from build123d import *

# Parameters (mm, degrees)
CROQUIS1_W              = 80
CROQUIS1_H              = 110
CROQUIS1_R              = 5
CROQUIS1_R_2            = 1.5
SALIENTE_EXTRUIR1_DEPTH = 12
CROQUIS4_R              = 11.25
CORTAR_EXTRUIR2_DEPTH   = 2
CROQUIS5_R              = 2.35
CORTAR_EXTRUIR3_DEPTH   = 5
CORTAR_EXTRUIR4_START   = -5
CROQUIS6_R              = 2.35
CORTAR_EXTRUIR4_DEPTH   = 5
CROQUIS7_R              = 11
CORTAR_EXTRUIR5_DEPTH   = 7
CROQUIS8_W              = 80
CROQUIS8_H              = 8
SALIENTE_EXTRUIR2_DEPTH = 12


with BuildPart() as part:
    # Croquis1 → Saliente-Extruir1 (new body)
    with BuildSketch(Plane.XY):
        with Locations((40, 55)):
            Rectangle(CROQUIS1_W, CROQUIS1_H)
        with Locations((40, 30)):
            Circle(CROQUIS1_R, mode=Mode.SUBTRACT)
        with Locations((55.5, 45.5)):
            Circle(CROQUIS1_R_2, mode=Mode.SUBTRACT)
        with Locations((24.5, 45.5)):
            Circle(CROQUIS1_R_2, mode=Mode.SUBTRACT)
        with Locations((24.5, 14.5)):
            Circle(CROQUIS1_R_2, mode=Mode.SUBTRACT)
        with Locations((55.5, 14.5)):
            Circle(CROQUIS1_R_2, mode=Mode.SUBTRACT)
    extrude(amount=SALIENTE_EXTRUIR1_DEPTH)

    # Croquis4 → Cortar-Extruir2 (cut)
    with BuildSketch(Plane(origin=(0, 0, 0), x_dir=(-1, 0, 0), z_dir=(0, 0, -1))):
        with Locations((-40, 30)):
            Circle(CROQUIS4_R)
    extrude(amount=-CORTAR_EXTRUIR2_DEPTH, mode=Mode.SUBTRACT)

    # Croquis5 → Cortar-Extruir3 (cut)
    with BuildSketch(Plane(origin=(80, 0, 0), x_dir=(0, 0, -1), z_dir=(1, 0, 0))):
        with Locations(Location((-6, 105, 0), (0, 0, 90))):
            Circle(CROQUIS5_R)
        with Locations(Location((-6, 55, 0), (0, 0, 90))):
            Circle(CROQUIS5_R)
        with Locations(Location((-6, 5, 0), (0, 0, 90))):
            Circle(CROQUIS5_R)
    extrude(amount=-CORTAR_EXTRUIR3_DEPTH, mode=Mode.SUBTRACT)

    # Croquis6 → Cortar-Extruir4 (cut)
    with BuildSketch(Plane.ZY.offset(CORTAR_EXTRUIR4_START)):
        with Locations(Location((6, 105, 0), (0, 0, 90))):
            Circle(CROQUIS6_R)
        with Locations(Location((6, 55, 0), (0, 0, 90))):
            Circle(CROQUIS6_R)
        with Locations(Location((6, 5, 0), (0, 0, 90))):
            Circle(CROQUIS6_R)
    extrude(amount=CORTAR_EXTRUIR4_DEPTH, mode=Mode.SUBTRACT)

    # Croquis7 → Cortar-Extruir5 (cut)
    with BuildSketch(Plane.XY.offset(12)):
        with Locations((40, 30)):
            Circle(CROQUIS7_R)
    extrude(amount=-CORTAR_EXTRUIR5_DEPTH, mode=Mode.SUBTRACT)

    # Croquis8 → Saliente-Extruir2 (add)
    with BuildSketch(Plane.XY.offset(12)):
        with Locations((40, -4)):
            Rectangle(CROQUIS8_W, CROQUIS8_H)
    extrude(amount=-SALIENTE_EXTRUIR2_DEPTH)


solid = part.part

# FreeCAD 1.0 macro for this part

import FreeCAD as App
import Part
import Sketcher
from FreeCAD import Vector
Q = App.Units.Quantity

doc = App.newDocument("Part")
body = doc.addObject("PartDesign::Body", "Body")

# Sketch on XY plane
sketch1 = body.newObject("Sketcher::SketchObject", "Sketch")
sketch1.AttachmentSupport = (doc.getObject("XY_Plane"), [""])
sketch1.MapMode = "FlatFace"
sketch1.addGeometry(Part.LineSegment(Vector(0, 110, 0), Vector(0, 0, 0)), False)
sketch1.addGeometry(Part.LineSegment(Vector(0, 0, 0), Vector(80, 0, 0)), False)
sketch1.addGeometry(Part.LineSegment(Vector(80, 0, 0), Vector(80, 110, 0)), False)
sketch1.addGeometry(Part.LineSegment(Vector(80, 110, 0), Vector(0, 110, 0)), False)
sketch1.addGeometry(Part.Circle(Vector(24.5, 14.5, 0), Vector(0, 0, 1), 1.5), False)
sketch1.addGeometry(Part.Circle(Vector(55.5, 14.5, 0), Vector(0, 0, 1), 1.5), False)
sketch1.addGeometry(Part.Circle(Vector(24.5, 45.5, 0), Vector(0, 0, 1), 1.5), False)
sketch1.addGeometry(Part.Circle(Vector(40, 30, 0), Vector(0, 0, 1), 5), False)
sketch1.addGeometry(Part.Circle(Vector(55.5, 45.5, 0), Vector(0, 0, 1), 1.5), False)
sketch1.addConstraint(Sketcher.Constraint("Coincident", 0, 2, 1, 1))
sketch1.addConstraint(Sketcher.Constraint("Coincident", 1, 2, 2, 1))
sketch1.addConstraint(Sketcher.Constraint("Coincident", 2, 2, 3, 1))
sketch1.addConstraint(Sketcher.Constraint("Coincident", 3, 2, 0, 1))
sketch1.addConstraint(Sketcher.Constraint("Vertical", 0))
sketch1.addConstraint(Sketcher.Constraint("Horizontal", 1))
sketch1.addConstraint(Sketcher.Constraint("Vertical", 2))
sketch1.addConstraint(Sketcher.Constraint("Horizontal", 3))
sketch1.addConstraint(Sketcher.Constraint("Coincident", 0, 2, -1, 1))
sketch1.addConstraint(Sketcher.Constraint("Equal", 4, 5))
sketch1.addConstraint(Sketcher.Constraint("Equal", 5, 6))
sketch1.addConstraint(Sketcher.Constraint("Equal", 6, 8))
sketch1.addConstraint(Sketcher.Constraint("Horizontal", 4, 3, 5, 3))
sketch1.addConstraint(Sketcher.Constraint("Horizontal", 6, 3, 8, 3))
sketch1.addConstraint(Sketcher.Constraint("Vertical", 4, 3, 6, 3))
sketch1.addConstraint(Sketcher.Constraint("Vertical", 5, 3, 8, 3))
sketch1.addConstraint(Sketcher.Constraint("Diameter", 4, Q("3 mm")))
sketch1.addConstraint(Sketcher.Constraint("Diameter", 7, Q("10 mm")))
sketch1.addConstraint(Sketcher.Constraint("DistanceX", 1, 1, 1, 2, Q("80 mm")))
sketch1.addConstraint(Sketcher.Constraint("DistanceY", 0, 2, 0, 1, Q("110 mm")))
sketch1.addConstraint(Sketcher.Constraint("DistanceX", -1, 1, 7, 3, Q("40 mm")))
sketch1.addConstraint(Sketcher.Constraint("DistanceY", -1, 1, 7, 3, Q("30 mm")))
sketch1.addConstraint(Sketcher.Constraint("DistanceX", 4, 3, 5, 3, Q("31 mm")))
sketch1.addConstraint(Sketcher.Constraint("DistanceY", 4, 3, 6, 3, Q("31 mm")))
sketch1.addConstraint(Sketcher.Constraint("DistanceX", -1, 1, 4, 3, Q("24.5 mm")))
sketch1.addConstraint(Sketcher.Constraint("DistanceY", -1, 1, 4, 3, Q("14.5 mm")))
pad1 = body.newObject("PartDesign::Pad", "Pad")
pad1.Profile = sketch1
pad1.Length = 12

# Sketch on XY plane
sketch2 = body.newObject("Sketcher::SketchObject", "Sketch001")
sketch2.AttachmentSupport = (doc.getObject("XY_Plane"), [""])
sketch2.MapMode = "FlatFace"
sketch2.addGeometry(Part.Circle(Vector(40, 30, 0), Vector(0, 0, 1), 11.25), False)
sketch2.addConstraint(Sketcher.Constraint("Diameter", 0, Q("22.5 mm")))
sketch2.addConstraint(Sketcher.Constraint("DistanceX", -1, 1, 0, 3, Q("40 mm")))
sketch2.addConstraint(Sketcher.Constraint("DistanceY", -1, 1, 0, 3, Q("30 mm")))
pocket1 = body.newObject("PartDesign::Pocket", "Pocket")
pocket1.Profile = sketch2
pocket1.Length = 2
pocket1.Reversed = True

# Sketch on YZ plane
sketch3 = body.newObject("Sketcher::SketchObject", "Sketch002")
sketch3.AttachmentSupport = (doc.getObject("YZ_Plane"), [""])
sketch3.MapMode = "FlatFace"
sketch3.AttachmentOffset = App.Placement(Vector(0, 0, 80), App.Rotation())
sketch3.addGeometry(Part.Circle(Vector(105, 6, 0), Vector(0, 0, 1), 2.35), False)
sketch3.addGeometry(Part.Circle(Vector(55, 6, 0), Vector(0, 0, 1), 2.35), False)
sketch3.addGeometry(Part.Circle(Vector(5, 6, 0), Vector(0, 0, 1), 2.35), False)
sketch3.addConstraint(Sketcher.Constraint("Equal", 0, 1))
sketch3.addConstraint(Sketcher.Constraint("Equal", 1, 2))
sketch3.addConstraint(Sketcher.Constraint("Horizontal", 0, 3, 1, 3))
sketch3.addConstraint(Sketcher.Constraint("Horizontal", 1, 3, 2, 3))
sketch3.addConstraint(Sketcher.Constraint("Diameter", 0, Q("4.7 mm")))
sketch3.addConstraint(Sketcher.Constraint("DistanceX", -1, 1, 0, 3, Q("105 mm")))
sketch3.addConstraint(Sketcher.Constraint("DistanceY", -1, 1, 0, 3, Q("6 mm")))
sketch3.addConstraint(Sketcher.Constraint("DistanceX", -1, 1, 1, 3, Q("55 mm")))
sketch3.addConstraint(Sketcher.Constraint("DistanceX", -1, 1, 2, 3, Q("5 mm")))
pocket2 = body.newObject("PartDesign::Pocket", "Pocket001")
pocket2.Profile = sketch3
pocket2.Length = 5

# Sketch on YZ plane
sketch4 = body.newObject("Sketcher::SketchObject", "Sketch003")
sketch4.AttachmentSupport = (doc.getObject("YZ_Plane"), [""])
sketch4.MapMode = "FlatFace"
sketch4.AttachmentOffset = App.Placement(Vector(0, 0, 5), App.Rotation())
sketch4.addGeometry(Part.Circle(Vector(105, 6, 0), Vector(0, 0, 1), 2.35), False)
sketch4.addGeometry(Part.Circle(Vector(55, 6, 0), Vector(0, 0, 1), 2.35), False)
sketch4.addGeometry(Part.Circle(Vector(5, 6, 0), Vector(0, 0, 1), 2.35), False)
sketch4.addConstraint(Sketcher.Constraint("Equal", 0, 1))
sketch4.addConstraint(Sketcher.Constraint("Equal", 1, 2))
sketch4.addConstraint(Sketcher.Constraint("Horizontal", 0, 3, 1, 3))
sketch4.addConstraint(Sketcher.Constraint("Horizontal", 1, 3, 2, 3))
sketch4.addConstraint(Sketcher.Constraint("Diameter", 0, Q("4.7 mm")))
sketch4.addConstraint(Sketcher.Constraint("DistanceX", -1, 1, 0, 3, Q("105 mm")))
sketch4.addConstraint(Sketcher.Constraint("DistanceY", -1, 1, 0, 3, Q("6 mm")))
sketch4.addConstraint(Sketcher.Constraint("DistanceX", -1, 1, 1, 3, Q("55 mm")))
sketch4.addConstraint(Sketcher.Constraint("DistanceX", -1, 1, 2, 3, Q("5 mm")))
pocket3 = body.newObject("PartDesign::Pocket", "Pocket002")
pocket3.Profile = sketch4
pocket3.Length = 5

# Sketch on XY plane
sketch5 = body.newObject("Sketcher::SketchObject", "Sketch004")
sketch5.AttachmentSupport = (doc.getObject("XY_Plane"), [""])
sketch5.MapMode = "FlatFace"
sketch5.AttachmentOffset = App.Placement(Vector(0, 0, 12), App.Rotation())
sketch5.addGeometry(Part.Circle(Vector(40, 30, 0), Vector(0, 0, 1), 11), False)
sketch5.addConstraint(Sketcher.Constraint("Diameter", 0, Q("22 mm")))
sketch5.addConstraint(Sketcher.Constraint("DistanceX", -1, 1, 0, 3, Q("40 mm")))
sketch5.addConstraint(Sketcher.Constraint("DistanceY", -1, 1, 0, 3, Q("30 mm")))
pocket4 = body.newObject("PartDesign::Pocket", "Pocket003")
pocket4.Profile = sketch5
pocket4.Length = 7

# Sketch on XY plane
sketch6 = body.newObject("Sketcher::SketchObject", "Sketch005")
sketch6.AttachmentSupport = (doc.getObject("XY_Plane"), [""])
sketch6.MapMode = "FlatFace"
sketch6.AttachmentOffset = App.Placement(Vector(0, 0, 12), App.Rotation())
sketch6.addGeometry(Part.LineSegment(Vector(0, 0, 0), Vector(0, -8, 0)), False)
sketch6.addGeometry(Part.LineSegment(Vector(0, -8, 0), Vector(80, -8, 0)), False)
sketch6.addGeometry(Part.LineSegment(Vector(80, -8, 0), Vector(80, 0, 0)), False)
sketch6.addGeometry(Part.LineSegment(Vector(80, 0, 0), Vector(0, 0, 0)), False)
sketch6.addConstraint(Sketcher.Constraint("Coincident", 0, 2, 1, 1))
sketch6.addConstraint(Sketcher.Constraint("Coincident", 1, 2, 2, 1))
sketch6.addConstraint(Sketcher.Constraint("Coincident", 2, 2, 3, 1))
sketch6.addConstraint(Sketcher.Constraint("Coincident", 3, 2, 0, 1))
sketch6.addConstraint(Sketcher.Constraint("Vertical", 0))
sketch6.addConstraint(Sketcher.Constraint("Horizontal", 1))
sketch6.addConstraint(Sketcher.Constraint("Vertical", 2))
sketch6.addConstraint(Sketcher.Constraint("Horizontal", 3))
sketch6.addConstraint(Sketcher.Constraint("Coincident", 3, 2, -1, 1))
sketch6.addConstraint(Sketcher.Constraint("DistanceX", 1, 1, 1, 2, Q("80 mm")))
sketch6.addConstraint(Sketcher.Constraint("DistanceY", 0, 2, 0, 1, Q("8 mm")))
pad2 = body.newObject("PartDesign::Pad", "Pad001")
pad2.Profile = sketch6
pad2.Length = 12
pad2.Reversed = True

doc.recompute()
